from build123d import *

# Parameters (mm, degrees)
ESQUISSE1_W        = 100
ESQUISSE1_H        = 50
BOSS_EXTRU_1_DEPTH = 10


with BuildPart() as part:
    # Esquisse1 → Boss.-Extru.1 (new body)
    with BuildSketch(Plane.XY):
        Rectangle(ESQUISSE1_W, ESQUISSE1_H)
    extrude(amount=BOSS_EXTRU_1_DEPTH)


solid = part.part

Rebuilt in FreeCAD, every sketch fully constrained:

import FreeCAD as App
import Part
import Sketcher
Q = App.Units.Quantity

doc = App.newDocument("Part")
body = doc.addObject("PartDesign::Body", "Body")

sketch1 = doc.addObject("Sketcher::SketchObject", "Sketch")
body.addObject(sketch1)
sketch1.AttachmentSupport = (doc.XY_Plane, [""])
sketch1.MapMode = "FlatFace"
sketch1.addGeometry([
    Part.LineSegment(App.Vector(-50, 25, 0), App.Vector(-50, -25, 0)),
    Part.LineSegment(App.Vector(-50, -25, 0), App.Vector(50, -25, 0)),
    Part.LineSegment(App.Vector(50, -25, 0), App.Vector(50, 25, 0)),
    Part.LineSegment(App.Vector(50, 25, 0), App.Vector(-50, 25, 0)),
], False)
sketch1.addConstraint([
    Sketcher.Constraint("Coincident", 0, 2, 1, 1),
    Sketcher.Constraint("Coincident", 1, 2, 2, 1),
    Sketcher.Constraint("Coincident", 2, 2, 3, 1),
    Sketcher.Constraint("Coincident", 3, 2, 0, 1),
    Sketcher.Constraint("Vertical", 0),
    Sketcher.Constraint("Horizontal", 1),
    Sketcher.Constraint("Vertical", 2),
    Sketcher.Constraint("Horizontal", 3),
    Sketcher.Constraint("Symmetric", 0, 2, 2, 2, -1, 1),
    Sketcher.Constraint("DistanceX", 1, 1, 1, 2, Q("100 mm")),
    Sketcher.Constraint("DistanceY", 0, 2, 0, 1, Q("50 mm")),
])
pad1 = doc.addObject("PartDesign::Pad", "Pad")
body.addObject(pad1)
pad1.Profile = sketch1
pad1.Length = 10

doc.recompute()
